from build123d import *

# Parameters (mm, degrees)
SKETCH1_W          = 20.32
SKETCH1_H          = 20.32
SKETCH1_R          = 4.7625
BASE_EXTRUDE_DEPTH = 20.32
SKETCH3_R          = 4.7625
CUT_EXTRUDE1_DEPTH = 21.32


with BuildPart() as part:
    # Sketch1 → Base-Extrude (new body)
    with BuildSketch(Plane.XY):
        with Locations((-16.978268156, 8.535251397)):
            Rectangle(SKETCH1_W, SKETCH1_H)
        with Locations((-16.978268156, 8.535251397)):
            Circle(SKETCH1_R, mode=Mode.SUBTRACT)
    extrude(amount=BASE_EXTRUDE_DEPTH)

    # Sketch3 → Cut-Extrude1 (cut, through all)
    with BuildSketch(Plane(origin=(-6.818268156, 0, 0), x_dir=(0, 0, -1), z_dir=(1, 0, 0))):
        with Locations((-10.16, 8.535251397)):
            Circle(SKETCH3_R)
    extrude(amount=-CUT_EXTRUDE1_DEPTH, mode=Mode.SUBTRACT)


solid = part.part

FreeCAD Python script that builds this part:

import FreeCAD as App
import Part
import Sketcher
Q = App.Units.Quantity


def add_polygon(sketch, points):
    """Adds a closed chain of lines whose ends are joined by coincident constraints."""
    first, n = sketch.GeometryCount, len(points)
    for a, b in zip(points, points[1:] + points[:1]):
        sketch.addGeometry(Part.LineSegment(App.Vector(*a, 0), App.Vector(*b, 0)), False)
    for i in range(n):
        sketch.addConstraint(Sketcher.Constraint("Coincident", first + i, 2, first + (i + 1) % n, 1))

doc = App.newDocument("Part")
body = doc.addObject("PartDesign::Body", "Body")

sketch1 = doc.addObject("Sketcher::SketchObject", "Sketch")
body.addObject(sketch1)
sketch1.AttachmentSupport = (doc.XY_Plane, [""])
sketch1.MapMode = "FlatFace"
add_polygon(sketch1, [(-27.1, 18.7), (-27.1, -1.6), (-6.8, -1.6), (-6.8, 18.7)])
sketch1.addGeometry(Part.Circle(App.Vector(-17, 8.5, 0), App.Vector(0, 0, 1), 4.8), False)
sketch1.addConstraint(Sketcher.Constraint("Vertical", 0))
sketch1.addConstraint(Sketcher.Constraint("Horizontal", 1))
sketch1.addConstraint(Sketcher.Constraint("Vertical", 2))
sketch1.addConstraint(Sketcher.Constraint("Horizontal", 3))
sketch1.addConstraint(Sketcher.Constraint("Equal", 3, 0))
sketch1.addConstraint(Sketcher.Constraint("Diameter", 4, Q("0.375 in")))
sketch1.addConstraint(Sketcher.Constraint("DistanceX", 1, 1, 1, 2, Q("0.8 in")))
sketch1.addConstraint(Sketcher.Constraint("DistanceX", 0, 2, 4, 3, Q("0.4 in")))
sketch1.addConstraint(Sketcher.Constraint("DistanceY", 0, 2, 4, 3, Q("0.4 in")))
sketch1.addConstraint(Sketcher.Constraint("DistanceX", 4, 3, -1, 1, Q("16.978268 mm")))
sketch1.addConstraint(Sketcher.Constraint("DistanceY", -1, 1, 4, 3, Q("8.535251 mm")))
pad1 = doc.addObject("PartDesign::Pad", "Pad")
body.addObject(pad1)
pad1.Profile = sketch1
pad1.Length = Q("0.8 in")

sketch2 = doc.addObject("Sketcher::SketchObject", "Sketch001")
body.addObject(sketch2)
sketch2.AttachmentSupport = (doc.YZ_Plane, [""])
sketch2.MapMode = "FlatFace"
sketch2.AttachmentOffset = App.Placement(App.Vector(0, 0, -6.818268), App.Rotation())
sketch2.addGeometry(Part.Circle(App.Vector(8.5, 10.2, 0), App.Vector(0, 0, 1), 4.8), False)
sketch2.addConstraint(Sketcher.Constraint("Diameter", 0, Q("0.375 in")))
sketch2.addConstraint(Sketcher.Constraint("DistanceY", -1, 1, 0, 3, Q("0.4 in")))
sketch2.addConstraint(Sketcher.Constraint("DistanceX", -1, 1, 0, 3, Q("8.535251 mm")))
pocket1 = doc.addObject("PartDesign::Pocket", "Pocket")
body.addObject(pocket1)
pocket1.Profile = sketch2
pocket1.Type = "ThroughAll"

doc.recompute()
